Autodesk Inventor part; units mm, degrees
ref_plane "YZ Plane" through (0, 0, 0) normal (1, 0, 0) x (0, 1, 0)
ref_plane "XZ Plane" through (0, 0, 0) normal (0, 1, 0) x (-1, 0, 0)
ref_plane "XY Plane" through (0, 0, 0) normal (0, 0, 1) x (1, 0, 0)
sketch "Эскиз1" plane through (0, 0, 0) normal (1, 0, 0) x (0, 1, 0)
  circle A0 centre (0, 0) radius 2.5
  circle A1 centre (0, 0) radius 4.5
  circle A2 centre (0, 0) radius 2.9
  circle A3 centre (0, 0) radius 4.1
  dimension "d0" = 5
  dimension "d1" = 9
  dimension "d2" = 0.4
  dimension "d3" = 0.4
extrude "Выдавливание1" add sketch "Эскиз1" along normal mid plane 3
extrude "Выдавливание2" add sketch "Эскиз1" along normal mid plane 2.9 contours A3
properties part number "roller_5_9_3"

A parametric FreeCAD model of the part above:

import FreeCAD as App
import Part
import Sketcher

V = App.Vector
Q = App.Units.Quantity

doc = App.newDocument("Part")
params = doc.addObject("Spreadsheet::Sheet", "Params")
for row, (alias, value) in enumerate([
    ("sketch1_diameter", "9 mm"),
    ("sketch1_diameter2", "5 mm"),
    ("sketch1_diameter3", "8.2 mm"),
    ("sketch1_diameter4", "5.8 mm"),
    ("pad1_length", "3 mm"),
    ("sketch2_diameter", "8.2 mm"),
    ("sketch2_diameter2", "5.8 mm"),
    ("pad2_length", "2.9 mm"),
], start=1):
    params.set(f"A{row}", alias)
    params.set(f"B{row}", "=" + value)
    params.setAlias(f"B{row}", alias)

body = doc.addObject("PartDesign::Body", "Body")
body.AllowCompound = True

# Sketch on YZ plane
sketch1 = doc.addObject("Sketcher::SketchObject", "Sketch")
body.addObject(sketch1)
sketch1.AttachmentSupport = (doc.YZ_Plane, [""])
sketch1.MapMode = "FlatFace"
sketch1.addGeometry(Part.Circle(V(0, 0, 0), V(0, 0, 1), 4.5), False)
sketch1.addGeometry(Part.Circle(V(0, 0, 0), V(0, 0, 1), 4.1), False)
sketch1.addGeometry(Part.Circle(V(0, 0, 0), V(0, 0, 1), 2.9), False)
sketch1.addGeometry(Part.Circle(V(0, 0, 0), V(0, 0, 1), 2.5), False)
sketch1.addConstraint(Sketcher.Constraint("Coincident", 0, 3, -1, 1))
sketch1.addConstraint(Sketcher.Constraint("Coincident", 1, 3, -1, 1))
sketch1.addConstraint(Sketcher.Constraint("Coincident", 2, 3, -1, 1))
sketch1.addConstraint(Sketcher.Constraint("Coincident", 3, 3, -1, 1))
sketch1.addConstraint(Sketcher.Constraint("Diameter", 0, Q("9 mm")))
sketch1.addConstraint(Sketcher.Constraint("Diameter", 3, Q("5 mm")))
sketch1.addConstraint(Sketcher.Constraint("Diameter", 1, Q("8.2 mm")))
sketch1.addConstraint(Sketcher.Constraint("Diameter", 2, Q("5.8 mm")))
sketch1.setExpression("Constraints[4]", "Params.sketch1_diameter")
sketch1.setExpression("Constraints[5]", "Params.sketch1_diameter2")
sketch1.setExpression("Constraints[6]", "Params.sketch1_diameter3")
sketch1.setExpression("Constraints[7]", "Params.sketch1_diameter4")
pad1 = doc.addObject("PartDesign::Pad", "Pad")
body.addObject(pad1)
pad1.Profile = sketch1
pad1.setExpression("Length", "Params.pad1_length")
pad1.Midplane = True

# Sketch on YZ plane
sketch2 = doc.addObject("Sketcher::SketchObject", "Sketch001")
body.addObject(sketch2)
sketch2.AttachmentSupport = (doc.YZ_Plane, [""])
sketch2.MapMode = "FlatFace"
sketch2.addGeometry(Part.Circle(V(0, 0, 0), V(0, 0, 1), 4.1), False)
sketch2.addGeometry(Part.Circle(V(0, 0, 0), V(0, 0, 1), 2.9), False)
sketch2.addConstraint(Sketcher.Constraint("Coincident", 0, 3, -1, 1))
sketch2.addConstraint(Sketcher.Constraint("Coincident", 1, 3, -1, 1))
sketch2.addConstraint(Sketcher.Constraint("Diameter", 0, Q("8.2 mm")))
sketch2.addConstraint(Sketcher.Constraint("Diameter", 1, Q("5.8 mm")))
sketch2.setExpression("Constraints[2]", "Params.sketch2_diameter")
sketch2.setExpression("Constraints[3]", "Params.sketch2_diameter2")
pad2 = doc.addObject("PartDesign::Pad", "Pad001")
body.addObject(pad2)
pad2.Profile = sketch2
pad2.setExpression("Length", "Params.pad2_length")
pad2.Midplane = True

doc.recompute()
